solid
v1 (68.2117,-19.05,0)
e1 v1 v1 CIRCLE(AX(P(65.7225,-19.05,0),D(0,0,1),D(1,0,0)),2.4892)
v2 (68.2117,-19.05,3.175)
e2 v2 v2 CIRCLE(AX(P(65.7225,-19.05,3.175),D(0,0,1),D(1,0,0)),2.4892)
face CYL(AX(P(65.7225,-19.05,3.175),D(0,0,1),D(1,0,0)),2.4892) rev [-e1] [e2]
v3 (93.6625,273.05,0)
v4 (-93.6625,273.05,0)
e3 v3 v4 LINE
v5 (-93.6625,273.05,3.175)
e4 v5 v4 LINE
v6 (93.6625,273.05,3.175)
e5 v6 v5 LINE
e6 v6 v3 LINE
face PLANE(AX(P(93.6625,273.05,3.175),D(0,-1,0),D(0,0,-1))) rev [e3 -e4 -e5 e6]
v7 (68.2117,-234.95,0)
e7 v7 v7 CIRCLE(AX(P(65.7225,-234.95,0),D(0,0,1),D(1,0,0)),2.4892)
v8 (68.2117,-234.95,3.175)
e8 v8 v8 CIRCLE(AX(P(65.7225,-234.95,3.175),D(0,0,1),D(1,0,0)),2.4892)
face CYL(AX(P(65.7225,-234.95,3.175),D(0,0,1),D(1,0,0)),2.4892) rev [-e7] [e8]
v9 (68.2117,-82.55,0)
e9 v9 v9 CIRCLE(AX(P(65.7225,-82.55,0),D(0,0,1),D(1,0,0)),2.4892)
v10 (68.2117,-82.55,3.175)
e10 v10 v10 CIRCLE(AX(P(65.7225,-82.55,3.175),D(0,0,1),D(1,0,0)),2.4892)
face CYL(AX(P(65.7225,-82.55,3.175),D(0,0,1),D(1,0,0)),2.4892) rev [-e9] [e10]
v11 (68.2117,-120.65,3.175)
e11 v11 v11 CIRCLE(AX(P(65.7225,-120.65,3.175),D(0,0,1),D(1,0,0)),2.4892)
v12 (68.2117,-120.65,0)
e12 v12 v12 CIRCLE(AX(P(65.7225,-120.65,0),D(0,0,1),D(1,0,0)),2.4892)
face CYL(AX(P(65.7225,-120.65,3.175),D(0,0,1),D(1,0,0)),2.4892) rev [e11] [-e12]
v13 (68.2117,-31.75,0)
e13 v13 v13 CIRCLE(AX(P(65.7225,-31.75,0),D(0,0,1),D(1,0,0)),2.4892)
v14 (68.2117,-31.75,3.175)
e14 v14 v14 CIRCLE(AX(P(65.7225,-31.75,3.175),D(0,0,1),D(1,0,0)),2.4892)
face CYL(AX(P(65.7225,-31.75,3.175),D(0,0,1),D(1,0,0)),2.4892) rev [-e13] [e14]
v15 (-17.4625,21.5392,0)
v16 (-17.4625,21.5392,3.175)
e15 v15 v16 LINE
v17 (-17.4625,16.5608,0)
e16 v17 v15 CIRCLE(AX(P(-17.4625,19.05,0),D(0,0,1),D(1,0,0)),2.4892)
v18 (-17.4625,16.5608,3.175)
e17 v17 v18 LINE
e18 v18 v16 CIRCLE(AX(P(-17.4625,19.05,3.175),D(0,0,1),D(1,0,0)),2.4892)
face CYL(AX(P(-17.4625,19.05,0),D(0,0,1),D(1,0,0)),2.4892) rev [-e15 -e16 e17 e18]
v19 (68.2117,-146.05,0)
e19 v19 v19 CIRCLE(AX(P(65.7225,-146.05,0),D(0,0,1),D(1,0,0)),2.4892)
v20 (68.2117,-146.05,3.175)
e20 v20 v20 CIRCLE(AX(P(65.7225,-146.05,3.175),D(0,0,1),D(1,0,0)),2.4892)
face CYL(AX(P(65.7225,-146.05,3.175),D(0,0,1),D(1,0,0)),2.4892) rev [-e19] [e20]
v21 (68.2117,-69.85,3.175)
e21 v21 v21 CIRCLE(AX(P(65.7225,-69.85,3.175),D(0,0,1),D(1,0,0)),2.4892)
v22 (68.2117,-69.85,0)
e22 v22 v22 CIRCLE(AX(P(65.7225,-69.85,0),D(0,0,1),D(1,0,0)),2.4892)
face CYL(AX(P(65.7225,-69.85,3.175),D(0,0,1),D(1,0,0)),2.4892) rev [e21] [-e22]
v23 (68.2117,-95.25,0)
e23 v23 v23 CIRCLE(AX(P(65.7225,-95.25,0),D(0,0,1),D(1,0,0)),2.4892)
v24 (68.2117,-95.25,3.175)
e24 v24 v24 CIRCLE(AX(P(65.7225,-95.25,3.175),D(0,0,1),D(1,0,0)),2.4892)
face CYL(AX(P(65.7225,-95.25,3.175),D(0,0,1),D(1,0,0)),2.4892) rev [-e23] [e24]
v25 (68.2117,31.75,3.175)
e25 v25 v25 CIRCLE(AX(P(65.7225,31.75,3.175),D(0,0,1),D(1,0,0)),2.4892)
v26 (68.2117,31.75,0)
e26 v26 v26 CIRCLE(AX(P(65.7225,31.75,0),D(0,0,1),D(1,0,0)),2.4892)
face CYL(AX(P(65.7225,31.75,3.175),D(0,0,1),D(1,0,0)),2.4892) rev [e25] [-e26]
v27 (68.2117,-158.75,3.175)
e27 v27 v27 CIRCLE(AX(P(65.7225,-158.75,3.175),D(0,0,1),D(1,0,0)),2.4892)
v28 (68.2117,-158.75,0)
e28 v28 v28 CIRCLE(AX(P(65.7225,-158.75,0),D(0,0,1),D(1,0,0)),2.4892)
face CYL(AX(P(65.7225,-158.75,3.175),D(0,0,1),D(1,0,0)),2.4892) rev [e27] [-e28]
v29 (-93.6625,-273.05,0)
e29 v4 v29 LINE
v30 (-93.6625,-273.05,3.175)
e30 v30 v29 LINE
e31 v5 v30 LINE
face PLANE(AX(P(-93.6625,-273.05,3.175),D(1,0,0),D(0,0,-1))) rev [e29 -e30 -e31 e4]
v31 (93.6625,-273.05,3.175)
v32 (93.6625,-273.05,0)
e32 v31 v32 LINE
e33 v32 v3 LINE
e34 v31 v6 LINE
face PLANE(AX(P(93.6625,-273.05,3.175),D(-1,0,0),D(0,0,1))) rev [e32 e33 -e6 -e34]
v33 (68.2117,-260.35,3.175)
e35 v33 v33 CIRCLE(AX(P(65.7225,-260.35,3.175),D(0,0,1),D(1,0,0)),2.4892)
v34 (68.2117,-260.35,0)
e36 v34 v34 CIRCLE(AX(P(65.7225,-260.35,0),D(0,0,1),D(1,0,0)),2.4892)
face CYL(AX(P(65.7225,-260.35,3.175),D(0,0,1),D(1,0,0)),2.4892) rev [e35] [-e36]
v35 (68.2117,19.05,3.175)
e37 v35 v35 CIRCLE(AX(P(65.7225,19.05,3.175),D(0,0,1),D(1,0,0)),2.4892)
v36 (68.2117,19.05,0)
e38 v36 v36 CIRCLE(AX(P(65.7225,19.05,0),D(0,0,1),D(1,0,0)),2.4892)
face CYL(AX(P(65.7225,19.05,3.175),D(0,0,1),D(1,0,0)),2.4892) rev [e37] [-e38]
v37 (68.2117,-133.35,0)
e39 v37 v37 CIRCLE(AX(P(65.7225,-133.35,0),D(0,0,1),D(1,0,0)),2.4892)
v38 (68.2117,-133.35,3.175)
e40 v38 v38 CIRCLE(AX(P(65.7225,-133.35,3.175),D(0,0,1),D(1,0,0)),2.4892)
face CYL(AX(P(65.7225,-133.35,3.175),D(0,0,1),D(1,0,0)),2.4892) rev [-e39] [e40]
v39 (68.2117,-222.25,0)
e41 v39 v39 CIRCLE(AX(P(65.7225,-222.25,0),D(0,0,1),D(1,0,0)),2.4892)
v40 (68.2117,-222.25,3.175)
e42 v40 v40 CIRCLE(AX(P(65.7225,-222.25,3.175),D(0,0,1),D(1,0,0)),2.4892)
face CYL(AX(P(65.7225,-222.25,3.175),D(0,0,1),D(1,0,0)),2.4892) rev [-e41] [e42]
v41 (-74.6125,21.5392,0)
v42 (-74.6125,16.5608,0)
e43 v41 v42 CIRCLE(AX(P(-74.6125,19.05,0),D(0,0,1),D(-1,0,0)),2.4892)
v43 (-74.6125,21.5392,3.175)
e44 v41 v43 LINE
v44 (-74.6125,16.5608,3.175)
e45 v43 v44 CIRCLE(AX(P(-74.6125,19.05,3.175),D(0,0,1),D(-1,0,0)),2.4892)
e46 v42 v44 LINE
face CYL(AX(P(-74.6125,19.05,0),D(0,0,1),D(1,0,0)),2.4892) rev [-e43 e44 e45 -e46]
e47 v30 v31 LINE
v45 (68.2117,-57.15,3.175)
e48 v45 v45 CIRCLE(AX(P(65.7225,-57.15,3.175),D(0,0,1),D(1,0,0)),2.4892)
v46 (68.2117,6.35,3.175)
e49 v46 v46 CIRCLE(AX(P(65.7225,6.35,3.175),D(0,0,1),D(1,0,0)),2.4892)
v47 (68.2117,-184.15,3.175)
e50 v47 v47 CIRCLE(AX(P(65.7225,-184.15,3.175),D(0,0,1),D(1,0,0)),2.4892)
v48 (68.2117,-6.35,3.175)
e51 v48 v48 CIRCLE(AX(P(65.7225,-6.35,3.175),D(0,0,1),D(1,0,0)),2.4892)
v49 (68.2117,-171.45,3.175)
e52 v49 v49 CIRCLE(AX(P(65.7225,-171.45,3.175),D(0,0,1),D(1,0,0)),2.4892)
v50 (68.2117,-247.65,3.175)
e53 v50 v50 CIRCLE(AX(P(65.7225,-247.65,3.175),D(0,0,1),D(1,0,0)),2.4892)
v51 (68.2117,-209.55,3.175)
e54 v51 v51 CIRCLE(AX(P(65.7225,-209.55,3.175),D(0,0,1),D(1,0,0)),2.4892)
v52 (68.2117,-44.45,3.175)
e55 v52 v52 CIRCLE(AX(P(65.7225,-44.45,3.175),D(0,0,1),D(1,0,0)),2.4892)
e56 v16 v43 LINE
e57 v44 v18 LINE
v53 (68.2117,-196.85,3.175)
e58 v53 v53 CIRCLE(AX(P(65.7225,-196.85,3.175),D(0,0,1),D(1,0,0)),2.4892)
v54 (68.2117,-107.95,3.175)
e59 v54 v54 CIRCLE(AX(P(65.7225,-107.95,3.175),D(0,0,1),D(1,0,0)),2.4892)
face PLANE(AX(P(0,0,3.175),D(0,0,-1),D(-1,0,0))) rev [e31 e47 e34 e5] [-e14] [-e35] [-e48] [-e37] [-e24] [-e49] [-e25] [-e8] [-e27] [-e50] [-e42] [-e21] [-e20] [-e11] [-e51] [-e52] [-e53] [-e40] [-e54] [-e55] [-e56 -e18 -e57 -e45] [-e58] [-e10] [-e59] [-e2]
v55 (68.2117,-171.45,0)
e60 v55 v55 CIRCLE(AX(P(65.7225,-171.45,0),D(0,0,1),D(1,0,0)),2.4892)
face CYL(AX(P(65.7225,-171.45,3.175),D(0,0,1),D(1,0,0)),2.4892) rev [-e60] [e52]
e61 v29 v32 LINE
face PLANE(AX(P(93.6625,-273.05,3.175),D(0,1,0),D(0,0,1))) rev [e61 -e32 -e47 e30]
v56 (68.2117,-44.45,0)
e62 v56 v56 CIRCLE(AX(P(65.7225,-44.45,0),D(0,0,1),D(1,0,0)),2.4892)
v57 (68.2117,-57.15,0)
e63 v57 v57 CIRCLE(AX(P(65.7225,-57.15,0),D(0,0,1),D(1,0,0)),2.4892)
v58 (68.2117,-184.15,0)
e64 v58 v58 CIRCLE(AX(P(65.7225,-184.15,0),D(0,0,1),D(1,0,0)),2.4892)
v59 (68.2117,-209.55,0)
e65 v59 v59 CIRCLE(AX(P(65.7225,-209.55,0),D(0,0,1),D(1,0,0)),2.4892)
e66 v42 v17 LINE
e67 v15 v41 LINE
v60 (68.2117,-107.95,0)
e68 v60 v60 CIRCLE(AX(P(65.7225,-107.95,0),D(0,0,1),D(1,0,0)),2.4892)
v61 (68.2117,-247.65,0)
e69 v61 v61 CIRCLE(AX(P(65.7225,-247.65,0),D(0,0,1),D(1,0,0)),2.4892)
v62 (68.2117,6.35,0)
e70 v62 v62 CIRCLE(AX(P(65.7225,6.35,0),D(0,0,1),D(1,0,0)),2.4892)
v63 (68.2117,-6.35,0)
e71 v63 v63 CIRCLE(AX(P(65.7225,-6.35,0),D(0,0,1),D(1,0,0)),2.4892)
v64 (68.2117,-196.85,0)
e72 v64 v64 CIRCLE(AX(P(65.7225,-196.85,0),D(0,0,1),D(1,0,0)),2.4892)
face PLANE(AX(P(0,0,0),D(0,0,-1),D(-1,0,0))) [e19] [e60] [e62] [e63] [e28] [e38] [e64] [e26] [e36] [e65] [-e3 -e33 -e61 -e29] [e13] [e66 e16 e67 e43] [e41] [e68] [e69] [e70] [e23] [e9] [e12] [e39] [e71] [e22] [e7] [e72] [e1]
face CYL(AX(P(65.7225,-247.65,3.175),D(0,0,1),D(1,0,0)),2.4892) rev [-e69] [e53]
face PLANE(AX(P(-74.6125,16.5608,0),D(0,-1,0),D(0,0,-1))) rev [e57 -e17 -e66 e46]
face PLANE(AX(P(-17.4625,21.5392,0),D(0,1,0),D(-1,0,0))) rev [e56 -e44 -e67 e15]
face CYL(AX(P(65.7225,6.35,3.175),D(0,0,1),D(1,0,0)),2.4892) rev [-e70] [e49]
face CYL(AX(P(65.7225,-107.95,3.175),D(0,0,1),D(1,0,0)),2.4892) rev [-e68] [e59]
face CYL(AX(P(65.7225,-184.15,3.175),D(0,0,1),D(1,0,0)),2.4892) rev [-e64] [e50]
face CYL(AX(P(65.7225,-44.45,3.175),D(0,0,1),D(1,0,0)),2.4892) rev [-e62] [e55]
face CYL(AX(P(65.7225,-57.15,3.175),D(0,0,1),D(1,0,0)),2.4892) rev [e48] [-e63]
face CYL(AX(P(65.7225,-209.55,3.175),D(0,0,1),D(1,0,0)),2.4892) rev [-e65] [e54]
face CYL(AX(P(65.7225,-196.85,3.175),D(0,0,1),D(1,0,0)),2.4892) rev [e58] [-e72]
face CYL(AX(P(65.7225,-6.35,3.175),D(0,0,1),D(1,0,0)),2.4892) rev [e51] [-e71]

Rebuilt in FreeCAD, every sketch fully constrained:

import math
import FreeCAD as App
import Part
import Sketcher
from FreeCAD import Vector
Q = App.Units.Quantity


def add_polygon(sketch, points):
    """Adds a closed chain of lines whose ends are joined by coincident constraints."""
    first, n = sketch.GeometryCount, len(points)
    for a, b in zip(points, points[1:] + points[:1]):
        sketch.addGeometry(Part.LineSegment(App.Vector(*a, 0), App.Vector(*b, 0)), False)
    for i in range(n):
        sketch.addConstraint(Sketcher.Constraint("Coincident", first + i, 2, first + (i + 1) % n, 1))

doc = App.newDocument("Part")
body = doc.addObject("PartDesign::Body", "Body")

# Sketch on XY plane
sketch1 = body.newObject("Sketcher::SketchObject", "Sketch")
sketch1.AttachmentSupport = (doc.getObject("XY_Plane"), [""])
sketch1.MapMode = "FlatFace"
add_polygon(sketch1, [(-94, -273), (94, -273), (94, 273), (-94, 273)])  # lines 0-3
sketch1.addConstraint([
    Sketcher.Constraint("Horizontal", 0),
    Sketcher.Constraint("Vertical", 1),
    Sketcher.Constraint("Horizontal", 2),
    Sketcher.Constraint("Vertical", 3),
    Sketcher.Constraint("Symmetric", 0, 2, 2, 2, -1, 1),
    Sketcher.Constraint("DistanceY", 1, 1, 1, 2, Q("21.5 in")),
    Sketcher.Constraint("DistanceX", 0, 1, 0, 2, Q("7.375 in")),
])
pad1 = body.newObject("PartDesign::Pad", "Pad")
pad1.Profile = sketch1
pad1.Length = Q("0.125 in")

# Sketch on XY plane
sketch2 = body.newObject("Sketcher::SketchObject", "Sketch001")
sketch2.AttachmentSupport = (doc.getObject("XY_Plane"), [""])
sketch2.MapMode = "FlatFace"
sketch2.AttachmentOffset = App.Placement(Vector(0, 0, 0.125 * 25.4), App.Rotation())
sketch2.addGeometry([
    Part.LineSegment(Vector(-74.6, 16.6, 0), Vector(-17.5, 16.6, 0)),
    Part.ArcOfCircle(Part.Circle(Vector(-17.5, 19.1, 0), Vector(0, 0, 1), 2.5), math.radians(-90), math.radians(90)),
    Part.LineSegment(Vector(-17.5, 21.5, 0), Vector(-74.6, 21.5, 0)),
    Part.ArcOfCircle(Part.Circle(Vector(-74.6, 19.1, 0), Vector(0, 0, 1), 2.5), math.radians(90), math.radians(270)),
], False)
sketch2.addConstraint([
    Sketcher.Constraint("Tangent", 0, 2, 1, 1),
    Sketcher.Constraint("Tangent", 1, 2, 2, 1),
    Sketcher.Constraint("Tangent", 2, 2, 3, 1),
    Sketcher.Constraint("Tangent", 3, 2, 0, 1),
    Sketcher.Constraint("Horizontal", 0),
    Sketcher.Constraint("Horizontal", 2),
    Sketcher.Constraint("Radius", 1, Q("0.098 in")),
    Sketcher.Constraint("DistanceX", 0, 1, 0, 2, Q("2.25 in")),
    Sketcher.Constraint("DistanceY", -1, 1, 1, 3, Q("0.75 in")),
    Sketcher.Constraint("DistanceX", 1, 3, -1, 1, Q("0.6875 in")),
])
pocket1 = body.newObject("PartDesign::Pocket", "Pocket")
pocket1.Profile = sketch2
pocket1.Type = "ThroughAll"

# Sketch on XY plane
sketch3 = body.newObject("Sketcher::SketchObject", "Sketch002")
sketch3.AttachmentSupport = (doc.getObject("XY_Plane"), [""])
sketch3.MapMode = "FlatFace"
sketch3.AttachmentOffset = App.Placement(Vector(0, 0, 0.125 * 25.4), App.Rotation())
sketch3.addGeometry([
    Part.Circle(Vector(65.7, -260.4, 0), Vector(0, 0, 1), 2.5),  # 0
    Part.Circle(Vector(65.7, -247.7, 0), Vector(0, 0, 1), 2.5),  # 1
    Part.Circle(Vector(65.7, -234.9, 0), Vector(0, 0, 1), 2.5),  # 2
    Part.Circle(Vector(65.7, -222.2, 0), Vector(0, 0, 1), 2.5),  # 3
    Part.Circle(Vector(65.7, -209.6, 0), Vector(0, 0, 1), 2.5),  # 4
    Part.Circle(Vector(65.7, -196.8, 0), Vector(0, 0, 1), 2.5),  # 5
    Part.Circle(Vector(65.7, -184.2, 0), Vector(0, 0, 1), 2.5),  # 6
    Part.Circle(Vector(65.7, -171.4, 0), Vector(0, 0, 1), 2.5),  # 7
    Part.Circle(Vector(65.7, -158.8, 0), Vector(0, 0, 1), 2.5),  # 8
    Part.Circle(Vector(65.7, -146.1, 0), Vector(0, 0, 1), 2.5),  # 9
    Part.Circle(Vector(65.7, -133.3, 0), Vector(0, 0, 1), 2.5),  # 10
    Part.Circle(Vector(65.7, -120.7, 0), Vector(0, 0, 1), 2.5),  # 11
    Part.Circle(Vector(65.7, -108, 0), Vector(0, 0, 1), 2.5),  # 12
    Part.Circle(Vector(65.7, -95.2, 0), Vector(0, 0, 1), 2.5),  # 13
    Part.Circle(Vector(65.7, -82.5, 0), Vector(0, 0, 1), 2.5),  # 14
    Part.Circle(Vector(65.7, -69.8, 0), Vector(0, 0, 1), 2.5),  # 15
    Part.Circle(Vector(65.7, -57.1, 0), Vector(0, 0, 1), 2.5),  # 16
    Part.Circle(Vector(65.7, -44.5, 0), Vector(0, 0, 1), 2.5),  # 17
    Part.Circle(Vector(65.7, -31.8, 0), Vector(0, 0, 1), 2.5),  # 18
    Part.Circle(Vector(65.7, -19.1, 0), Vector(0, 0, 1), 2.5),  # 19
    Part.Circle(Vector(65.7, -6.3, 0), Vector(0, 0, 1), 2.5),  # 20
    Part.Circle(Vector(65.7, 6.3, 0), Vector(0, 0, 1), 2.5),  # 21
    Part.Circle(Vector(65.7, 19.1, 0), Vector(0, 0, 1), 2.5),  # 22
    Part.Circle(Vector(65.7, 31.8, 0), Vector(0, 0, 1), 2.5),  # 23
], False)
sketch3.addConstraint([
    Sketcher.Constraint("Equal", 0, 1),
    Sketcher.Constraint("Equal", 1, 2),
    Sketcher.Constraint("Equal", 2, 3),
    Sketcher.Constraint("Equal", 3, 4),
    Sketcher.Constraint("Equal", 4, 5),
    Sketcher.Constraint("Equal", 5, 6),
    Sketcher.Constraint("Equal", 6, 7),
    Sketcher.Constraint("Equal", 7, 8),
    Sketcher.Constraint("Equal", 8, 9),
    Sketcher.Constraint("Equal", 9, 10),
    Sketcher.Constraint("Equal", 10, 11),
    Sketcher.Constraint("Equal", 11, 12),
    Sketcher.Constraint("Equal", 12, 13),
    Sketcher.Constraint("Equal", 13, 14),
    Sketcher.Constraint("Equal", 14, 15),
    Sketcher.Constraint("Equal", 15, 16),
    Sketcher.Constraint("Equal", 16, 17),
    Sketcher.Constraint("Equal", 17, 18),
    Sketcher.Constraint("Equal", 18, 19),
    Sketcher.Constraint("Equal", 19, 20),
    Sketcher.Constraint("Equal", 20, 21),
    Sketcher.Constraint("Equal", 21, 22),
    Sketcher.Constraint("Equal", 22, 23),
    Sketcher.Constraint("Symmetric", 20, 3, 21, 3, -1),
    Sketcher.Constraint("Symmetric", 19, 3, 22, 3, -1),
    Sketcher.Constraint("Symmetric", 18, 3, 23, 3, -1),
    Sketcher.Constraint("Vertical", 0, 3, 1, 3),
    Sketcher.Constraint("Vertical", 1, 3, 2, 3),
    Sketcher.Constraint("Vertical", 2, 3, 3, 3),
    Sketcher.Constraint("Vertical", 3, 3, 4, 3),
    Sketcher.Constraint("Vertical", 4, 3, 5, 3),
    Sketcher.Constraint("Vertical", 5, 3, 6, 3),
    Sketcher.Constraint("Vertical", 6, 3, 7, 3),
    Sketcher.Constraint("Vertical", 7, 3, 8, 3),
    Sketcher.Constraint("Vertical", 8, 3, 9, 3),
    Sketcher.Constraint("Vertical", 9, 3, 10, 3),
    Sketcher.Constraint("Vertical", 10, 3, 11, 3),
    Sketcher.Constraint("Vertical", 11, 3, 12, 3),
    Sketcher.Constraint("Vertical", 12, 3, 13, 3),
    Sketcher.Constraint("Vertical", 13, 3, 14, 3),
    Sketcher.Constraint("Vertical", 14, 3, 15, 3),
    Sketcher.Constraint("Vertical", 15, 3, 16, 3),
    Sketcher.Constraint("Vertical", 16, 3, 17, 3),
    Sketcher.Constraint("Vertical", 17, 3, 18, 3),
    Sketcher.Constraint("Vertical", 18, 3, 19, 3),
    Sketcher.Constraint("Vertical", 19, 3, 20, 3),
    Sketcher.Constraint("Diameter", 0, Q("0.196 in")),
    Sketcher.Constraint("DistanceY", 0, 3, 2, 3, Q("1 in")),
    Sketcher.Constraint("DistanceY", 1, 3, 3, 3, Q("1 in")),
    Sketcher.Constraint("DistanceY", 2, 3, 4, 3, Q("1 in")),
    Sketcher.Constraint("DistanceY", 3, 3, 5, 3, Q("1 in")),
    Sketcher.Constraint("DistanceY", 4, 3, 6, 3, Q("1 in")),
    Sketcher.Constraint("DistanceY", 5, 3, 7, 3, Q("1 in")),
    Sketcher.Constraint("DistanceY", 6, 3, 8, 3, Q("1 in")),
    Sketcher.Constraint("DistanceY", 7, 3, 9, 3, Q("1 in")),
    Sketcher.Constraint("DistanceY", 8, 3, 10, 3, Q("1 in")),
    Sketcher.Constraint("DistanceY", 9, 3, 11, 3, Q("1 in")),
    Sketcher.Constraint("DistanceY", 10, 3, 12, 3, Q("1 in")),
    Sketcher.Constraint("DistanceY", 11, 3, 13, 3, Q("1 in")),
    Sketcher.Constraint("DistanceY", 12, 3, 14, 3, Q("1 in")),
    Sketcher.Constraint("DistanceY", 13, 3, 15, 3, Q("1 in")),
    Sketcher.Constraint("DistanceY", 14, 3, 16, 3, Q("1 in")),
    Sketcher.Constraint("DistanceY", 15, 3, 17, 3, Q("1 in")),
    Sketcher.Constraint("DistanceY", 16, 3, 18, 3, Q("1 in")),
    Sketcher.Constraint("DistanceY", 17, 3, 19, 3, Q("1 in")),
    Sketcher.Constraint("DistanceY", 18, 3, 20, 3, Q("1 in")),
    Sketcher.Constraint("DistanceY", 19, 3, 21, 3, Q("1 in")),
    Sketcher.Constraint("DistanceY", 0, 3, 1, 3, Q("0.5 in")),
    Sketcher.Constraint("DistanceX", -1, 1, 0, 3, Q("2.5875 in")),
])
doc.recompute()
hole = body.newObject("PartDesign::Hole", "Hole")
hole.Profile = sketch3
hole.ThreadType = "None"
hole.Diameter = Q("0.196 in")
hole.DepthType = "ThroughAll"

doc.recompute()
